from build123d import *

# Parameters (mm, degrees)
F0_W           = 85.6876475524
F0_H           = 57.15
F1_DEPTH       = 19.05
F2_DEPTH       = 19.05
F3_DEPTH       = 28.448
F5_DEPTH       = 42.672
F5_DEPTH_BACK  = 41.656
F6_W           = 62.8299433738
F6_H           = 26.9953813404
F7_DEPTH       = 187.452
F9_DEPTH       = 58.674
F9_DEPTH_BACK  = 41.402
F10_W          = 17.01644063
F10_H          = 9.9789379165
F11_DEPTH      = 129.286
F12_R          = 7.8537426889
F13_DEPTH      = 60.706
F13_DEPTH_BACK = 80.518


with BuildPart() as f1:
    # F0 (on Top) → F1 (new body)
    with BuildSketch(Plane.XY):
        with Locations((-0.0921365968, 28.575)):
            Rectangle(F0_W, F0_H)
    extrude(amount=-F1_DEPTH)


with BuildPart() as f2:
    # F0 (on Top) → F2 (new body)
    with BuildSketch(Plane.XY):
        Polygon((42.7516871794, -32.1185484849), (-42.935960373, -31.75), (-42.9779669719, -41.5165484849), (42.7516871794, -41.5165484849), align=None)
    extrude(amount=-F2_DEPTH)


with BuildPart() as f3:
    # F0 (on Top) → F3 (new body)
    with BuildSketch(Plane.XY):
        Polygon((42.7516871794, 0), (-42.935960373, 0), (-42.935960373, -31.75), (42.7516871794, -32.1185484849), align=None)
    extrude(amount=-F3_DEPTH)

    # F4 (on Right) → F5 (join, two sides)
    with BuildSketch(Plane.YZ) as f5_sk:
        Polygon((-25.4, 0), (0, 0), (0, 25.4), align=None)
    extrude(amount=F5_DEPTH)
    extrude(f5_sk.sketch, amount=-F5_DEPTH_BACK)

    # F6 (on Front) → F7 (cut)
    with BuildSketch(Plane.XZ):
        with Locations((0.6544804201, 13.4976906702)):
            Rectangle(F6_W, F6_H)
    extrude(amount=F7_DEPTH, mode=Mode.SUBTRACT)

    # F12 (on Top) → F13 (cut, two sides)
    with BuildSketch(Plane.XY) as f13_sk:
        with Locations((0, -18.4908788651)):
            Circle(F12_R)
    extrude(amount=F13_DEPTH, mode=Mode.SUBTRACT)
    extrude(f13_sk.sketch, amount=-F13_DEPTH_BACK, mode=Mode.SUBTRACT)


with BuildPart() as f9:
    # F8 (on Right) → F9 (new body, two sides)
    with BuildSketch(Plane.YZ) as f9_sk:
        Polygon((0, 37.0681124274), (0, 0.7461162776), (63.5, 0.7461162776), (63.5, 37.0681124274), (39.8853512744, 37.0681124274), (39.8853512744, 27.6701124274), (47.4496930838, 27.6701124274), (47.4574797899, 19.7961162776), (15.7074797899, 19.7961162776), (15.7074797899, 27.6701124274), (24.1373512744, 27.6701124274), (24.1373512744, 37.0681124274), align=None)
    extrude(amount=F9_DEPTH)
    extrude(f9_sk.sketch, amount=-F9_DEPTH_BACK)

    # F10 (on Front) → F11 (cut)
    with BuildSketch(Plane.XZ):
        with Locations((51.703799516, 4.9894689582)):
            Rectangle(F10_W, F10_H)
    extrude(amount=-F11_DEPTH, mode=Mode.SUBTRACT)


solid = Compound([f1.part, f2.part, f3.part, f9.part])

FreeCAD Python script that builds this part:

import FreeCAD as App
import Part
import Sketcher
Q = App.Units.Quantity

doc = App.newDocument("Part")
body = doc.addObject("PartDesign::Body", "Body")

# Sketch on XY plane
sketch1 = body.newObject("Sketcher::SketchObject", "Sketch")
sketch1.AttachmentSupport = (doc.getObject("XY_Plane"), [""])
sketch1.MapMode = "FlatFace"
sketch1.addGeometry(Part.LineSegment(App.Vector(-43, 57, 0), App.Vector(-43, 0, 0)), False)
sketch1.addGeometry(Part.LineSegment(App.Vector(-43, 0, 0), App.Vector(43, 0, 0)), False)
sketch1.addGeometry(Part.LineSegment(App.Vector(43, 0, 0), App.Vector(43, 57, 0)), False)
sketch1.addGeometry(Part.LineSegment(App.Vector(43, 57, 0), App.Vector(-43, 57, 0)), False)
sketch1.addConstraint(Sketcher.Constraint("Coincident", 0, 2, 1, 1))
sketch1.addConstraint(Sketcher.Constraint("Coincident", 1, 2, 2, 1))
sketch1.addConstraint(Sketcher.Constraint("Coincident", 2, 2, 3, 1))
sketch1.addConstraint(Sketcher.Constraint("Coincident", 3, 2, 0, 1))
sketch1.addConstraint(Sketcher.Constraint("Vertical", 0))
sketch1.addConstraint(Sketcher.Constraint("Horizontal", 1))
sketch1.addConstraint(Sketcher.Constraint("Vertical", 2))
sketch1.addConstraint(Sketcher.Constraint("Horizontal", 3))
sketch1.addConstraint(Sketcher.Constraint("PointOnObject", 0, 2, -1))
sketch1.addConstraint(Sketcher.Constraint("DistanceY", 0, 2, 0, 1, Q("2.25 in")))
sketch1.addConstraint(Sketcher.Constraint("DistanceX", 1, 1, 1, 2, Q("85.687648 mm")))
sketch1.addConstraint(Sketcher.Constraint("DistanceX", 0, 2, -1, 1, Q("42.93596 mm")))
pad1 = body.newObject("PartDesign::Pad", "Pad")
pad1.Profile = sketch1
pad1.Length = Q("0.75 in")
pad1.Reversed = True
body2 = doc.addObject("PartDesign::Body", "Body001")

# Sketch on XY plane
sketch2 = body2.newObject("Sketcher::SketchObject", "Sketch001")
sketch2.AttachmentSupport = (doc.getObject("XY_Plane001"), [""])
sketch2.MapMode = "FlatFace"
sketch2.addGeometry(Part.LineSegment(App.Vector(43, -32, 0), App.Vector(-43, -32, 0)), False)
sketch2.addGeometry(Part.LineSegment(App.Vector(-43, -32, 0), App.Vector(-43, -42, 0)), False)
sketch2.addGeometry(Part.LineSegment(App.Vector(-43, -42, 0), App.Vector(43, -42, 0)), False)
sketch2.addGeometry(Part.LineSegment(App.Vector(43, -42, 0), App.Vector(43, -32, 0)), False)
sketch2.addConstraint(Sketcher.Constraint("Coincident", 0, 2, 1, 1))
sketch2.addConstraint(Sketcher.Constraint("Coincident", 1, 2, 2, 1))
sketch2.addConstraint(Sketcher.Constraint("Coincident", 2, 2, 3, 1))
sketch2.addConstraint(Sketcher.Constraint("Coincident", 3, 2, 0, 1))
sketch2.addConstraint(Sketcher.Constraint("Horizontal", 2))
sketch2.addConstraint(Sketcher.Constraint("Vertical", 3))
sketch2.addConstraint(Sketcher.Constraint("Perpendicular", 0, 1))
sketch2.addConstraint(Sketcher.Constraint("DistanceY", 3, 1, 3, 2, Q("0.37 in")))
sketch2.addConstraint(Sketcher.Constraint("DistanceY", 0, 2, -1, 1, Q("1.25 in")))
sketch2.addConstraint(Sketcher.Constraint("Distance", 0, Q("85.68844 mm")))
sketch2.addConstraint(Sketcher.Constraint("Distance", 1, Q("9.766639 mm")))
sketch2.addConstraint(Sketcher.Constraint("DistanceX", 0, 2, -1, 1, Q("42.93596 mm")))
pad2 = body2.newObject("PartDesign::Pad", "Pad001")
pad2.Profile = sketch2
pad2.Length = Q("0.75 in")
pad2.Reversed = True
body3 = doc.addObject("PartDesign::Body", "Body002")

# Sketch on XY plane
sketch3 = body3.newObject("Sketcher::SketchObject", "Sketch002")
sketch3.AttachmentSupport = (doc.getObject("XY_Plane002"), [""])
sketch3.MapMode = "FlatFace"
sketch3.addGeometry(Part.LineSegment(App.Vector(43, 0, 0), App.Vector(-43, 0, 0)), False)
sketch3.addGeometry(Part.LineSegment(App.Vector(-43, 0, 0), App.Vector(-43, -32, 0)), False)
sketch3.addGeometry(Part.LineSegment(App.Vector(-43, -32, 0), App.Vector(43, -32, 0)), False)
sketch3.addGeometry(Part.LineSegment(App.Vector(43, -32, 0), App.Vector(43, 0, 0)), False)
sketch3.addConstraint(Sketcher.Constraint("Coincident", 0, 2, 1, 1))
sketch3.addConstraint(Sketcher.Constraint("Coincident", 1, 2, 2, 1))
sketch3.addConstraint(Sketcher.Constraint("Coincident", 2, 2, 3, 1))
sketch3.addConstraint(Sketcher.Constraint("Coincident", 3, 2, 0, 1))
sketch3.addConstraint(Sketcher.Constraint("Horizontal", 0))
sketch3.addConstraint(Sketcher.Constraint("Vertical", 1))
sketch3.addConstraint(Sketcher.Constraint("Vertical", 3))
sketch3.addConstraint(Sketcher.Constraint("PointOnObject", 0, 2, -1))
sketch3.addConstraint(Sketcher.Constraint("DistanceY", 1, 2, 1, 1, Q("1.25 in")))
sketch3.addConstraint(Sketcher.Constraint("DistanceY", 3, 1, 3, 2, Q("32.118548 mm")))
sketch3.addConstraint(Sketcher.Constraint("Distance", 2, Q("85.68844 mm")))
sketch3.addConstraint(Sketcher.Constraint("DistanceX", 0, 2, -1, 1, Q("42.93596 mm")))
pad3 = body3.newObject("PartDesign::Pad", "Pad002")
pad3.Profile = sketch3
pad3.Length = Q("1.12 in")
pad3.Reversed = True

# Sketch on YZ plane
sketch4 = body3.newObject("Sketcher::SketchObject", "Sketch003")
sketch4.AttachmentSupport = (doc.getObject("YZ_Plane002"), [""])
sketch4.MapMode = "FlatFace"
sketch4.addGeometry(Part.LineSegment(App.Vector(-25, 0, 0), App.Vector(0, 0, 0)), False)
sketch4.addGeometry(Part.LineSegment(App.Vector(0, 0, 0), App.Vector(0, 25, 0)), False)
sketch4.addGeometry(Part.LineSegment(App.Vector(0, 25, 0), App.Vector(-25, 0, 0)), False)
sketch4.addConstraint(Sketcher.Constraint("Coincident", 0, 2, 1, 1))
sketch4.addConstraint(Sketcher.Constraint("Coincident", 1, 2, 2, 1))
sketch4.addConstraint(Sketcher.Constraint("Coincident", 2, 2, 0, 1))
sketch4.addConstraint(Sketcher.Constraint("Horizontal", 0))
sketch4.addConstraint(Sketcher.Constraint("Vertical", 1))
sketch4.addConstraint(Sketcher.Constraint("Coincident", 0, 2, -1, 1))
sketch4.addConstraint(Sketcher.Constraint("Equal", 0, 1))
sketch4.addConstraint(Sketcher.Constraint("DistanceX", 0, 1, 0, 2, Q("1 in")))
pad4 = body3.newObject("PartDesign::Pad", "Pad003")
pad4.Profile = sketch4
pad4.Type = "TwoLengths"
pad4.Length = Q("1.68 in")
pad4.Length2 = Q("1.64 in")

# Sketch on XZ plane
sketch5 = body3.newObject("Sketcher::SketchObject", "Sketch004")
sketch5.AttachmentSupport = (doc.getObject("XZ_Plane002"), [""])
sketch5.MapMode = "FlatFace"
sketch5.addGeometry(Part.LineSegment(App.Vector(-31, 27, 0), App.Vector(-31, 0, 0)), False)
sketch5.addGeometry(Part.LineSegment(App.Vector(-31, 0, 0), App.Vector(32, 0, 0)), False)
sketch5.addGeometry(Part.LineSegment(App.Vector(32, 0, 0), App.Vector(32, 27, 0)), False)
sketch5.addGeometry(Part.LineSegment(App.Vector(32, 27, 0), App.Vector(-31, 27, 0)), False)
sketch5.addConstraint(Sketcher.Constraint("Coincident", 0, 2, 1, 1))
sketch5.addConstraint(Sketcher.Constraint("Coincident", 1, 2, 2, 1))
sketch5.addConstraint(Sketcher.Constraint("Coincident", 2, 2, 3, 1))
sketch5.addConstraint(Sketcher.Constraint("Coincident", 3, 2, 0, 1))
sketch5.addConstraint(Sketcher.Constraint("Vertical", 0))
sketch5.addConstraint(Sketcher.Constraint("Horizontal", 1))
sketch5.addConstraint(Sketcher.Constraint("Vertical", 2))
sketch5.addConstraint(Sketcher.Constraint("Horizontal", 3))
sketch5.addConstraint(Sketcher.Constraint("PointOnObject", 0, 2, -1))
sketch5.addConstraint(Sketcher.Constraint("DistanceY", 0, 2, 0, 1, Q("26.995381 mm")))
sketch5.addConstraint(Sketcher.Constraint("DistanceX", 1, 1, 1, 2, Q("62.829943 mm")))
sketch5.addConstraint(Sketcher.Constraint("DistanceX", 0, 2, -1, 1, Q("30.760491 mm")))
pocket1 = body3.newObject("PartDesign::Pocket", "Pocket")
pocket1.Profile = sketch5
pocket1.Length = Q("7.38 in")
pocket1.Reversed = True

# Sketch on XY plane
sketch6 = body3.newObject("Sketcher::SketchObject", "Sketch005")
sketch6.AttachmentSupport = (doc.getObject("XY_Plane002"), [""])
sketch6.MapMode = "FlatFace"
sketch6.addGeometry(Part.Circle(App.Vector(0, -18, 0), App.Vector(0, 0, 1), 8), False)
sketch6.addConstraint(Sketcher.Constraint("PointOnObject", 0, 3, -2))
sketch6.addConstraint(Sketcher.Constraint("Diameter", 0, Q("15.707485 mm")))
sketch6.addConstraint(Sketcher.Constraint("DistanceY", 0, 3, -1, 1, Q("18.490879 mm")))
pocket2 = body3.newObject("PartDesign::Pocket", "Pocket001")
pocket2.Profile = sketch6
pocket2.Type = "ThroughAll"
pocket2.Midplane = True
body4 = doc.addObject("PartDesign::Body", "Body003")

# Sketch on YZ plane
sketch7 = body4.newObject("Sketcher::SketchObject", "Sketch006")
sketch7.AttachmentSupport = (doc.getObject("YZ_Plane003"), [""])
sketch7.MapMode = "FlatFace"
sketch7.addGeometry(Part.LineSegment(App.Vector(0, 37, 0), App.Vector(0, 1, 0)), False)
sketch7.addGeometry(Part.LineSegment(App.Vector(0, 1, 0), App.Vector(64, 1, 0)), False)
sketch7.addGeometry(Part.LineSegment(App.Vector(64, 1, 0), App.Vector(64, 37, 0)), False)
sketch7.addGeometry(Part.LineSegment(App.Vector(64, 37, 0), App.Vector(40, 37, 0)), False)
sketch7.addGeometry(Part.LineSegment(App.Vector(40, 37, 0), App.Vector(40, 28, 0)), False)
sketch7.addGeometry(Part.LineSegment(App.Vector(40, 28, 0), App.Vector(47, 28, 0)), False)
sketch7.addGeometry(Part.LineSegment(App.Vector(47, 28, 0), App.Vector(47, 20, 0)), False)
sketch7.addGeometry(Part.LineSegment(App.Vector(47, 20, 0), App.Vector(16, 20, 0)), False)
sketch7.addGeometry(Part.LineSegment(App.Vector(16, 20, 0), App.Vector(16, 28, 0)), False)
sketch7.addGeometry(Part.LineSegment(App.Vector(16, 28, 0), App.Vector(24, 28, 0)), False)
sketch7.addGeometry(Part.LineSegment(App.Vector(24, 28, 0), App.Vector(24, 37, 0)), False)
sketch7.addGeometry(Part.LineSegment(App.Vector(24, 37, 0), App.Vector(0, 37, 0)), False)
sketch7.addConstraint(Sketcher.Constraint("Coincident", 0, 2, 1, 1))
sketch7.addConstraint(Sketcher.Constraint("Coincident", 1, 2, 2, 1))
sketch7.addConstraint(Sketcher.Constraint("Coincident", 2, 2, 3, 1))
sketch7.addConstraint(Sketcher.Constraint("Coincident", 3, 2, 4, 1))
sketch7.addConstraint(Sketcher.Constraint("Coincident", 4, 2, 5, 1))
sketch7.addConstraint(Sketcher.Constraint("Coincident", 5, 2, 6, 1))
sketch7.addConstraint(Sketcher.Constraint("Coincident", 6, 2, 7, 1))
sketch7.addConstraint(Sketcher.Constraint("Coincident", 7, 2, 8, 1))
sketch7.addConstraint(Sketcher.Constraint("Coincident", 8, 2, 9, 1))
sketch7.addConstraint(Sketcher.Constraint("Coincident", 9, 2, 10, 1))
sketch7.addConstraint(Sketcher.Constraint("Coincident", 10, 2, 11, 1))
sketch7.addConstraint(Sketcher.Constraint("Coincident", 11, 2, 0, 1))
sketch7.addConstraint(Sketcher.Constraint("Vertical", 0))
sketch7.addConstraint(Sketcher.Constraint("Horizontal", 1))
sketch7.addConstraint(Sketcher.Constraint("Vertical", 2))
sketch7.addConstraint(Sketcher.Constraint("Horizontal", 3))
sketch7.addConstraint(Sketcher.Constraint("Vertical", 4))
sketch7.addConstraint(Sketcher.Constraint("Horizontal", 5))
sketch7.addConstraint(Sketcher.Constraint("Horizontal", 7))
sketch7.addConstraint(Sketcher.Constraint("Vertical", 8))
sketch7.addConstraint(Sketcher.Constraint("Horizontal", 9))
sketch7.addConstraint(Sketcher.Constraint("Vertical", 10))
sketch7.addConstraint(Sketcher.Constraint("Horizontal", 11))
sketch7.addConstraint(Sketcher.Constraint("PointOnObject", 0, 2, -2))
sketch7.addConstraint(Sketcher.Constraint("Horizontal", 5, 2, 8, 2))
sketch7.addConstraint(Sketcher.Constraint("Horizontal", 3, 2, 10, 2))
sketch7.addConstraint(Sketcher.Constraint("DistanceX", 1, 1, 1, 2, Q("2.5 in")))
sketch7.addConstraint(Sketcher.Constraint("DistanceX", 7, 2, 7, 1, Q("1.25 in")))
sketch7.addConstraint(Sketcher.Constraint("DistanceY", 0, 2, 0, 1, Q("1.4299998 in")))
sketch7.addConstraint(Sketcher.Constraint("DistanceY", 4, 2, 4, 1, Q("0.37 in")))
sketch7.addConstraint(Sketcher.Constraint("DistanceY", 8, 1, 8, 2, Q("0.3099998 in")))
sketch7.addConstraint(Sketcher.Constraint("DistanceX", 9, 2, 4, 2, Q("0.62 in")))
sketch7.addConstraint(Sketcher.Constraint("DistanceX", 3, 2, 3, 1, Q("23.614649 mm")))
sketch7.addConstraint(Sketcher.Constraint("DistanceX", 5, 1, 5, 2, Q("7.564342 mm")))
sketch7.addConstraint(Sketcher.Constraint("DistanceX", 9, 1, 9, 2, Q("8.429871 mm")))
sketch7.addConstraint(Sketcher.Constraint("DistanceY", -1, 1, 0, 2, Q("0.746116 mm")))
pad5 = body4.newObject("PartDesign::Pad", "Pad004")
pad5.Profile = sketch7
pad5.Type = "TwoLengths"
pad5.Length = Q("2.31 in")
pad5.Length2 = Q("1.63 in")

# Sketch on XZ plane
sketch8 = body4.newObject("Sketcher::SketchObject", "Sketch007")
sketch8.AttachmentSupport = (doc.getObject("XZ_Plane003"), [""])
sketch8.MapMode = "FlatFace"
sketch8.addGeometry(Part.LineSegment(App.Vector(43, 10, 0), App.Vector(43, 0, 0)), False)
sketch8.addGeometry(Part.LineSegment(App.Vector(43, 0, 0), App.Vector(60, 0, 0)), False)
sketch8.addGeometry(Part.LineSegment(App.Vector(60, 0, 0), App.Vector(60, 10, 0)), False)
sketch8.addGeometry(Part.LineSegment(App.Vector(60, 10, 0), App.Vector(43, 10, 0)), False)
sketch8.addConstraint(Sketcher.Constraint("Coincident", 0, 2, 1, 1))
sketch8.addConstraint(Sketcher.Constraint("Coincident", 1, 2, 2, 1))
sketch8.addConstraint(Sketcher.Constraint("Coincident", 2, 2, 3, 1))
sketch8.addConstraint(Sketcher.Constraint("Coincident", 3, 2, 0, 1))
sketch8.addConstraint(Sketcher.Constraint("Vertical", 0))
sketch8.addConstraint(Sketcher.Constraint("Horizontal", 1))
sketch8.addConstraint(Sketcher.Constraint("Vertical", 2))
sketch8.addConstraint(Sketcher.Constraint("Horizontal", 3))
sketch8.addConstraint(Sketcher.Constraint("PointOnObject", 0, 2, -1))
sketch8.addConstraint(Sketcher.Constraint("DistanceX", 1, 1, 1, 2, Q("17.016441 mm")))
sketch8.addConstraint(Sketcher.Constraint("DistanceY", 0, 2, 0, 1, Q("9.978938 mm")))
sketch8.addConstraint(Sketcher.Constraint("DistanceX", -1, 1, 0, 2, Q("43.195579 mm")))
pocket3 = body4.newObject("PartDesign::Pocket", "Pocket002")
pocket3.Profile = sketch8
pocket3.Length = Q("5.09 in")

doc.recompute()
